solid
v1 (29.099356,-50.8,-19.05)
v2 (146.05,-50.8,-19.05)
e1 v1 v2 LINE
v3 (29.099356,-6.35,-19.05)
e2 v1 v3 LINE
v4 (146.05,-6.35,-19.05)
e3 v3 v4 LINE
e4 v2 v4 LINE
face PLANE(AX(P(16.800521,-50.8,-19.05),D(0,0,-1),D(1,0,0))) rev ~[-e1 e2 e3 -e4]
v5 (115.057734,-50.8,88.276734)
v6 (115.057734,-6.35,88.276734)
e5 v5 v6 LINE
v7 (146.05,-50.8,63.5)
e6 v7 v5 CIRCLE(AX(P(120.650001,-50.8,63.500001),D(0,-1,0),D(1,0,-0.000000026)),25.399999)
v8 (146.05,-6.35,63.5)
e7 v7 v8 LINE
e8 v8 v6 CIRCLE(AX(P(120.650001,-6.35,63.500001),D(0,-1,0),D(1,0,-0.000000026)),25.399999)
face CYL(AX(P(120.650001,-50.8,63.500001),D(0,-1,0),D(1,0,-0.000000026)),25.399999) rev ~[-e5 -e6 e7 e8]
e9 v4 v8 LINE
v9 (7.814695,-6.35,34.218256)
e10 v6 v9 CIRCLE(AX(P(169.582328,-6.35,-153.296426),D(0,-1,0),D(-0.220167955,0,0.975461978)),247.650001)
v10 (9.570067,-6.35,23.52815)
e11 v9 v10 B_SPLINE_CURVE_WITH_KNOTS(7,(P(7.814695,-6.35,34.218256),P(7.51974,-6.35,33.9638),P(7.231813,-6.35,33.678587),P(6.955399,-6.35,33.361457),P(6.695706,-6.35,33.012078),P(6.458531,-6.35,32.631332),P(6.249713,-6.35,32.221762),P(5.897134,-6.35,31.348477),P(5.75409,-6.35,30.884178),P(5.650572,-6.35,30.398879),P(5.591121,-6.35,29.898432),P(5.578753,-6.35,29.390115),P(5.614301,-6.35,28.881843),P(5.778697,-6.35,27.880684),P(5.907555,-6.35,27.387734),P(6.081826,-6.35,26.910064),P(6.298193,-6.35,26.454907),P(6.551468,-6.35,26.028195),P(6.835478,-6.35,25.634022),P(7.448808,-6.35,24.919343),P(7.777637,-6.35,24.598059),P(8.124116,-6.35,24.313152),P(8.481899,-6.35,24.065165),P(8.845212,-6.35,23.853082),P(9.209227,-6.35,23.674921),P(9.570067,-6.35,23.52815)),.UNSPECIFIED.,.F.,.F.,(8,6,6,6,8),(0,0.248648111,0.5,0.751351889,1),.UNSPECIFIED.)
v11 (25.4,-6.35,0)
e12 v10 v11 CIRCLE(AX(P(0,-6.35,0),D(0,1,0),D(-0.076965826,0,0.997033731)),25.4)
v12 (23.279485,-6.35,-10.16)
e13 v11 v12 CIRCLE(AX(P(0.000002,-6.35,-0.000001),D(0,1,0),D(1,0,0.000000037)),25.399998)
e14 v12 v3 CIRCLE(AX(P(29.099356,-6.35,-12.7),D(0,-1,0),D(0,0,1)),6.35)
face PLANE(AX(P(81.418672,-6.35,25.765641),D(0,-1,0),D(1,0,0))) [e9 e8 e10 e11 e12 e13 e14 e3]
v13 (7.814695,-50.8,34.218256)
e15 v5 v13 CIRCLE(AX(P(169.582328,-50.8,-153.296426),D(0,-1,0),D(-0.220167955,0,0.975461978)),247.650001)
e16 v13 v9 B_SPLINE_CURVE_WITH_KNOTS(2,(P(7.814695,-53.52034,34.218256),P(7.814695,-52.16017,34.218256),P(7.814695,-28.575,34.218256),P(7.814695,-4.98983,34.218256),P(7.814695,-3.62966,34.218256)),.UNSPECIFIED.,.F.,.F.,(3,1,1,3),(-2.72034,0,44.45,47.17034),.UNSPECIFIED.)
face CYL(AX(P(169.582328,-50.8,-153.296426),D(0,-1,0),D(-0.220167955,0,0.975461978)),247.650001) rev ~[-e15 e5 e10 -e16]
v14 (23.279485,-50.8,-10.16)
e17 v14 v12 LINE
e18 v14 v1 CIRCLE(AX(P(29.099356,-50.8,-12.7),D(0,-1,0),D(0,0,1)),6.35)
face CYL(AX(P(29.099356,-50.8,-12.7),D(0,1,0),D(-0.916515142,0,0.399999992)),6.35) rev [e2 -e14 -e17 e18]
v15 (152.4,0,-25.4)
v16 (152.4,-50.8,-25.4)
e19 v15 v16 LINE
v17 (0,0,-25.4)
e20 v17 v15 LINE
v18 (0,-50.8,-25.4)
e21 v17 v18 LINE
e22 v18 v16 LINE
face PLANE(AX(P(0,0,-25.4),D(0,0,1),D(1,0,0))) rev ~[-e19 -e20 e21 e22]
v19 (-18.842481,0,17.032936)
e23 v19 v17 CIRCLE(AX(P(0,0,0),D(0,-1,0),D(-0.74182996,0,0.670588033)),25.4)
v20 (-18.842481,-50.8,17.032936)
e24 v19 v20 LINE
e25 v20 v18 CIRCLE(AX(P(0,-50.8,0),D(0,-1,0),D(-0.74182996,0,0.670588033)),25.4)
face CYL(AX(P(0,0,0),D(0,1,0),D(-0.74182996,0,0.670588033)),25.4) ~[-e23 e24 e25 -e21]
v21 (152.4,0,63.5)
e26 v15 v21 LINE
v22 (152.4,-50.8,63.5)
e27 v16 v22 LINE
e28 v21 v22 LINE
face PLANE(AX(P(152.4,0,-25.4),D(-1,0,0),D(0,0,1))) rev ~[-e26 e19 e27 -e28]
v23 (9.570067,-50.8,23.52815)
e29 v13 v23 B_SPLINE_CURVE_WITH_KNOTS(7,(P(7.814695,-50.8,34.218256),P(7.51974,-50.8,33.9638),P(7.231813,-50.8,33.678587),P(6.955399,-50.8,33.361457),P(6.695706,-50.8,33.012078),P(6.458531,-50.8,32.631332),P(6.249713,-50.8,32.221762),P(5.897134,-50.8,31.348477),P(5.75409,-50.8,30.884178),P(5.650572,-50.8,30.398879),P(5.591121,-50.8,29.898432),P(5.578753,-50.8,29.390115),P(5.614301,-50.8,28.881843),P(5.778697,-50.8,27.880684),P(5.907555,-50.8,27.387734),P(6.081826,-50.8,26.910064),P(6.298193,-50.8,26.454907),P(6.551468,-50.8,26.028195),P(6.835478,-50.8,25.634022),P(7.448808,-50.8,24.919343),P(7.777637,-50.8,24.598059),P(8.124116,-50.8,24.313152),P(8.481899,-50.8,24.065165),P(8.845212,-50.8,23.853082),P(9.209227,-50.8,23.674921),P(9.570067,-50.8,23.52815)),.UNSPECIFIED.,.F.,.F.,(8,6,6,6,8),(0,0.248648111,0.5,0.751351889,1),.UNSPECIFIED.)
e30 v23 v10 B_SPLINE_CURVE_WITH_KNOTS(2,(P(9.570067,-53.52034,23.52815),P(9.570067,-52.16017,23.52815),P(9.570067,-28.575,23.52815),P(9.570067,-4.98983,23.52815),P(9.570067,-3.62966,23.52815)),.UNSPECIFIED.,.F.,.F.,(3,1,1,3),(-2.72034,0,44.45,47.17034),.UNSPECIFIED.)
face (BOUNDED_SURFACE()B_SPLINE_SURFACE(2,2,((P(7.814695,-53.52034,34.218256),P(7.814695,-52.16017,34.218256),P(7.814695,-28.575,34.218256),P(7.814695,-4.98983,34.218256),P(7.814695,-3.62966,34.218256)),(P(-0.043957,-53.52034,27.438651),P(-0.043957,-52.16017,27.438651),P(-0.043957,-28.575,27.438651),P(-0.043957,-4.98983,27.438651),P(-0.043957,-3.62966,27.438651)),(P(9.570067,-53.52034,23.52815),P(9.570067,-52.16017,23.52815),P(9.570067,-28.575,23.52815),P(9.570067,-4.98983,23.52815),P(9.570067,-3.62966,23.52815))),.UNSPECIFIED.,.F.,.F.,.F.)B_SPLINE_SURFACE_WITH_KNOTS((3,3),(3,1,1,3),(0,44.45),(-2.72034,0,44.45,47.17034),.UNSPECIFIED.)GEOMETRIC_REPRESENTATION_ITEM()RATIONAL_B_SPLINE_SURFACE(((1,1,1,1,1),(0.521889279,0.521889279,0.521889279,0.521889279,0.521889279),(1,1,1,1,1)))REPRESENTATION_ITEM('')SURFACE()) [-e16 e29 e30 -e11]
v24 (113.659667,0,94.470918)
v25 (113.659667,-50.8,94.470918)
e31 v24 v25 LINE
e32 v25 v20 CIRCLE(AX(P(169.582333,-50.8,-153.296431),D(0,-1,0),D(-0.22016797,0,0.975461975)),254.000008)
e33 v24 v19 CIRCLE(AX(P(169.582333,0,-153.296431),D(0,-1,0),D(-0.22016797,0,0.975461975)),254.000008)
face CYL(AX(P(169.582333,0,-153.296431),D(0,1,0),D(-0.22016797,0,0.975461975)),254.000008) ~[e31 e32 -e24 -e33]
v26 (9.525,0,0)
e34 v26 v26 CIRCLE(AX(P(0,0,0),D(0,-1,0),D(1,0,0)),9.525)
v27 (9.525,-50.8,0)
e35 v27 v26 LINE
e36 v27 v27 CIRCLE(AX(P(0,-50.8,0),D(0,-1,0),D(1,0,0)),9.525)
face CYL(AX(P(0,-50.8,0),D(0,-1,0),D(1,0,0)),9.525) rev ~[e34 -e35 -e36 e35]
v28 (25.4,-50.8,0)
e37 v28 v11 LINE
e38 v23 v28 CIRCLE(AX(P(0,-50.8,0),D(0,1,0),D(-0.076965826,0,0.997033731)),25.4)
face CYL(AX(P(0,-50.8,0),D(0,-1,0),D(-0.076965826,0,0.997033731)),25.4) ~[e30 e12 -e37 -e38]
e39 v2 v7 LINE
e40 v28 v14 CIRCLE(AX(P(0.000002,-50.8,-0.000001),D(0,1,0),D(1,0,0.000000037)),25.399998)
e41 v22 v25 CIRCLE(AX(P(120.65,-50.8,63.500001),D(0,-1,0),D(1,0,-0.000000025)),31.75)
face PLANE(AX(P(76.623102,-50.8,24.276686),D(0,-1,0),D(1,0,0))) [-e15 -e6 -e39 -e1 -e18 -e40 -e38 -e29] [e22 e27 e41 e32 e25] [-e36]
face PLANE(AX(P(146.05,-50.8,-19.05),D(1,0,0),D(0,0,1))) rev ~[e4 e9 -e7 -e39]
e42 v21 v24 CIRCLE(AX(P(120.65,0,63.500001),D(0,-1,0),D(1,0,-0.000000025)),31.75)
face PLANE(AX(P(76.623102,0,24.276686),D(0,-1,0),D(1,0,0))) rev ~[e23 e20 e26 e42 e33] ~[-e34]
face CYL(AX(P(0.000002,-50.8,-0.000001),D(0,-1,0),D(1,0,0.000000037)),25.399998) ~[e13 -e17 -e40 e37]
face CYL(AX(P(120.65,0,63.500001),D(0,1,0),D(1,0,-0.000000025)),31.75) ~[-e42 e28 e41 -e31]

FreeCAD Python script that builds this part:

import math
import FreeCAD as App
import Part
import Sketcher
from FreeCAD import Vector
Q = App.Units.Quantity


def edges_at(feature, points):
    """Names of the edges that pass closest to the given points."""
    edges = feature.Shape.Edges
    near = lambda p: min(range(len(edges)), key=lambda i: edges[i].distToShape(Part.Vertex(*p))[0])
    return sorted({f"Edge{near(p) + 1}" for p in points})

doc = App.newDocument("Part")
body = doc.addObject("PartDesign::Body", "Body")

sketch1 = doc.addObject("Sketcher::SketchObject", "Sketch")
body.addObject(sketch1)
sketch1.AttachmentSupport = (doc.XZ_Plane, [""])
sketch1.MapMode = "FlatFace"
sketch1.addGeometry(Part.LineSegment(Vector(0, -25, 0), Vector(152, -25, 0)), False)
sketch1.addGeometry(Part.LineSegment(Vector(152, -25, 0), Vector(152, 64, 0)), False)
sketch1.addGeometry(Part.ArcOfCircle(Part.Circle(Vector(121, 64, 0), Vector(0, 0, 1), 32), math.radians(0), math.radians(103)), False)
sketch1.addGeometry(Part.ArcOfCircle(Part.Circle(Vector(170, -153, 0), Vector(0, 0, 1), 254), math.radians(103), math.radians(138)), False)
sketch1.addGeometry(Part.ArcOfCircle(Part.Circle(Vector(0, 0, 0), Vector(0, 0, 1), 25), math.radians(138), math.radians(270)), False)
sketch1.addConstraint(Sketcher.Constraint("Coincident", 0, 2, 1, 1))
sketch1.addConstraint(Sketcher.Constraint("Tangent", 1, 2, 2, 1))
sketch1.addConstraint(Sketcher.Constraint("Tangent", 2, 2, 3, 1))
sketch1.addConstraint(Sketcher.Constraint("Tangent", 3, 2, 4, 1))
sketch1.addConstraint(Sketcher.Constraint("Tangent", 4, 2, 0, 1))
sketch1.addConstraint(Sketcher.Constraint("Horizontal", 0))
sketch1.addConstraint(Sketcher.Constraint("Vertical", 1))
sketch1.addConstraint(Sketcher.Constraint("Coincident", 4, 3, -1, 1))
sketch1.addConstraint(Sketcher.Constraint("Radius", 4, Q("1 in")))
sketch1.addConstraint(Sketcher.Constraint("DistanceX", 0, 1, 0, 2, Q("6 in")))
sketch1.addConstraint(Sketcher.Constraint("Radius", 2, Q("1.25 in")))
sketch1.addConstraint(Sketcher.Constraint("DistanceY", 1, 1, 1, 2, Q("3.5 in")))
sketch1.addConstraint(Sketcher.Constraint("Radius", 3, Q("254.000008 mm")))
pad1 = doc.addObject("PartDesign::Pad", "Pad")
body.addObject(pad1)
pad1.Profile = sketch1
pad1.Length = Q("2 in")

sketch2 = doc.addObject("Sketcher::SketchObject", "Sketch001")
body.addObject(sketch2)
sketch2.AttachmentSupport = (doc.XZ_Plane, [""])
sketch2.MapMode = "FlatFace"
sketch2.AttachmentOffset = App.Placement(Vector(0, 0, 2 * 25.4), App.Rotation())
sketch2.addGeometry(Part.ArcOfCircle(Part.Circle(Vector(170, -153, 0), Vector(0, 0, 1), 248), math.radians(103), math.radians(134)), False)
sketch2.addGeometry(Part.ArcOfCircle(Part.Circle(Vector(0, 0, 0), Vector(0, 0, 1), 25), math.radians(0), math.radians(94)), False)
sketch2.addGeometry(Part.ArcOfCircle(Part.Circle(Vector(0, 0, 0), Vector(0, 0, 1), 25), math.radians(-49), math.radians(0)), False)
sketch2.addGeometry(Part.LineSegment(Vector(17, -19, 0), Vector(146, -19, 0)), False)
sketch2.addGeometry(Part.LineSegment(Vector(146, -19, 0), Vector(146, 64, 0)), False)
sketch2.addGeometry(Part.ArcOfCircle(Part.Circle(Vector(121, 64, 0), Vector(0, 0, 1), 25), math.radians(0), math.radians(103)), False)
sketch2.addConstraint(Sketcher.Constraint("Coincident", 0, 2, 1, 2))
sketch2.addConstraint(Sketcher.Constraint("Tangent", 1, 1, 2, 2))
sketch2.addConstraint(Sketcher.Constraint("Coincident", 2, 1, 3, 1))
sketch2.addConstraint(Sketcher.Constraint("Coincident", 3, 2, 4, 1))
sketch2.addConstraint(Sketcher.Constraint("Tangent", 4, 2, 5, 1))
sketch2.addConstraint(Sketcher.Constraint("Tangent", 5, 2, 0, 1))
sketch2.addConstraint(Sketcher.Constraint("Horizontal", 3))
sketch2.addConstraint(Sketcher.Constraint("Vertical", 4))
sketch2.addConstraint(Sketcher.Constraint("Coincident", 1, 3, -1, 1))
sketch2.addConstraint(Sketcher.Constraint("Equal", 1, 2))
sketch2.addConstraint(Sketcher.Constraint("Equal", 2, 5))
sketch2.addConstraint(Sketcher.Constraint("PointOnObject", 1, 1, -1))
sketch2.addConstraint(Sketcher.Constraint("Radius", 1, Q("1 in")))
sketch2.addConstraint(Sketcher.Constraint("Radius", 0, Q("9.75 in")))
sketch2.addConstraint(Sketcher.Constraint("DistanceY", 4, 1, 4, 2, Q("3.25 in")))
sketch2.addConstraint(Sketcher.Constraint("DistanceY", -1, 1, 5, 3, Q("2.5 in")))
sketch2.addConstraint(Sketcher.Constraint("DistanceX", -1, 1, 5, 3, Q("4.75 in")))
sketch2.addConstraint(Sketcher.Constraint("DistanceX", -1, 1, 0, 3, Q("169.582328 mm")))
pocket1 = doc.addObject("PartDesign::Pocket", "Pocket")
body.addObject(pocket1)
pocket1.Profile = sketch2
pocket1.Length = Q("1.75 in")

sketch3 = doc.addObject("Sketcher::SketchObject", "Sketch002")
body.addObject(sketch3)
sketch3.AttachmentSupport = (doc.XZ_Plane, [""])
sketch3.MapMode = "FlatFace"
sketch3.AttachmentOffset = App.Placement(Vector(0, 0, 2 * 25.4), App.Rotation())
sketch3.addGeometry(Part.Circle(Vector(0, 0, 0), Vector(0, 0, 1), 10), False)
sketch3.addConstraint(Sketcher.Constraint("Coincident", 0, 3, -1, 1))
sketch3.addConstraint(Sketcher.Constraint("Diameter", 0, Q("0.75 in")))
pocket2 = doc.addObject("PartDesign::Pocket", "Pocket001")
body.addObject(pocket2)
pocket2.Profile = sketch3
pocket2.Type = "ThroughAll"
doc.recompute()

fillet = doc.addObject("PartDesign::Fillet", "Fillet")
body.addObject(fillet)
fillet.Base = (pocket2, edges_at(pocket2, [(16.801, -28.575, -19.05), (-1.955, -28.575, 25.325)]))
fillet.Radius = Q("0.25 in")

doc.recompute()
